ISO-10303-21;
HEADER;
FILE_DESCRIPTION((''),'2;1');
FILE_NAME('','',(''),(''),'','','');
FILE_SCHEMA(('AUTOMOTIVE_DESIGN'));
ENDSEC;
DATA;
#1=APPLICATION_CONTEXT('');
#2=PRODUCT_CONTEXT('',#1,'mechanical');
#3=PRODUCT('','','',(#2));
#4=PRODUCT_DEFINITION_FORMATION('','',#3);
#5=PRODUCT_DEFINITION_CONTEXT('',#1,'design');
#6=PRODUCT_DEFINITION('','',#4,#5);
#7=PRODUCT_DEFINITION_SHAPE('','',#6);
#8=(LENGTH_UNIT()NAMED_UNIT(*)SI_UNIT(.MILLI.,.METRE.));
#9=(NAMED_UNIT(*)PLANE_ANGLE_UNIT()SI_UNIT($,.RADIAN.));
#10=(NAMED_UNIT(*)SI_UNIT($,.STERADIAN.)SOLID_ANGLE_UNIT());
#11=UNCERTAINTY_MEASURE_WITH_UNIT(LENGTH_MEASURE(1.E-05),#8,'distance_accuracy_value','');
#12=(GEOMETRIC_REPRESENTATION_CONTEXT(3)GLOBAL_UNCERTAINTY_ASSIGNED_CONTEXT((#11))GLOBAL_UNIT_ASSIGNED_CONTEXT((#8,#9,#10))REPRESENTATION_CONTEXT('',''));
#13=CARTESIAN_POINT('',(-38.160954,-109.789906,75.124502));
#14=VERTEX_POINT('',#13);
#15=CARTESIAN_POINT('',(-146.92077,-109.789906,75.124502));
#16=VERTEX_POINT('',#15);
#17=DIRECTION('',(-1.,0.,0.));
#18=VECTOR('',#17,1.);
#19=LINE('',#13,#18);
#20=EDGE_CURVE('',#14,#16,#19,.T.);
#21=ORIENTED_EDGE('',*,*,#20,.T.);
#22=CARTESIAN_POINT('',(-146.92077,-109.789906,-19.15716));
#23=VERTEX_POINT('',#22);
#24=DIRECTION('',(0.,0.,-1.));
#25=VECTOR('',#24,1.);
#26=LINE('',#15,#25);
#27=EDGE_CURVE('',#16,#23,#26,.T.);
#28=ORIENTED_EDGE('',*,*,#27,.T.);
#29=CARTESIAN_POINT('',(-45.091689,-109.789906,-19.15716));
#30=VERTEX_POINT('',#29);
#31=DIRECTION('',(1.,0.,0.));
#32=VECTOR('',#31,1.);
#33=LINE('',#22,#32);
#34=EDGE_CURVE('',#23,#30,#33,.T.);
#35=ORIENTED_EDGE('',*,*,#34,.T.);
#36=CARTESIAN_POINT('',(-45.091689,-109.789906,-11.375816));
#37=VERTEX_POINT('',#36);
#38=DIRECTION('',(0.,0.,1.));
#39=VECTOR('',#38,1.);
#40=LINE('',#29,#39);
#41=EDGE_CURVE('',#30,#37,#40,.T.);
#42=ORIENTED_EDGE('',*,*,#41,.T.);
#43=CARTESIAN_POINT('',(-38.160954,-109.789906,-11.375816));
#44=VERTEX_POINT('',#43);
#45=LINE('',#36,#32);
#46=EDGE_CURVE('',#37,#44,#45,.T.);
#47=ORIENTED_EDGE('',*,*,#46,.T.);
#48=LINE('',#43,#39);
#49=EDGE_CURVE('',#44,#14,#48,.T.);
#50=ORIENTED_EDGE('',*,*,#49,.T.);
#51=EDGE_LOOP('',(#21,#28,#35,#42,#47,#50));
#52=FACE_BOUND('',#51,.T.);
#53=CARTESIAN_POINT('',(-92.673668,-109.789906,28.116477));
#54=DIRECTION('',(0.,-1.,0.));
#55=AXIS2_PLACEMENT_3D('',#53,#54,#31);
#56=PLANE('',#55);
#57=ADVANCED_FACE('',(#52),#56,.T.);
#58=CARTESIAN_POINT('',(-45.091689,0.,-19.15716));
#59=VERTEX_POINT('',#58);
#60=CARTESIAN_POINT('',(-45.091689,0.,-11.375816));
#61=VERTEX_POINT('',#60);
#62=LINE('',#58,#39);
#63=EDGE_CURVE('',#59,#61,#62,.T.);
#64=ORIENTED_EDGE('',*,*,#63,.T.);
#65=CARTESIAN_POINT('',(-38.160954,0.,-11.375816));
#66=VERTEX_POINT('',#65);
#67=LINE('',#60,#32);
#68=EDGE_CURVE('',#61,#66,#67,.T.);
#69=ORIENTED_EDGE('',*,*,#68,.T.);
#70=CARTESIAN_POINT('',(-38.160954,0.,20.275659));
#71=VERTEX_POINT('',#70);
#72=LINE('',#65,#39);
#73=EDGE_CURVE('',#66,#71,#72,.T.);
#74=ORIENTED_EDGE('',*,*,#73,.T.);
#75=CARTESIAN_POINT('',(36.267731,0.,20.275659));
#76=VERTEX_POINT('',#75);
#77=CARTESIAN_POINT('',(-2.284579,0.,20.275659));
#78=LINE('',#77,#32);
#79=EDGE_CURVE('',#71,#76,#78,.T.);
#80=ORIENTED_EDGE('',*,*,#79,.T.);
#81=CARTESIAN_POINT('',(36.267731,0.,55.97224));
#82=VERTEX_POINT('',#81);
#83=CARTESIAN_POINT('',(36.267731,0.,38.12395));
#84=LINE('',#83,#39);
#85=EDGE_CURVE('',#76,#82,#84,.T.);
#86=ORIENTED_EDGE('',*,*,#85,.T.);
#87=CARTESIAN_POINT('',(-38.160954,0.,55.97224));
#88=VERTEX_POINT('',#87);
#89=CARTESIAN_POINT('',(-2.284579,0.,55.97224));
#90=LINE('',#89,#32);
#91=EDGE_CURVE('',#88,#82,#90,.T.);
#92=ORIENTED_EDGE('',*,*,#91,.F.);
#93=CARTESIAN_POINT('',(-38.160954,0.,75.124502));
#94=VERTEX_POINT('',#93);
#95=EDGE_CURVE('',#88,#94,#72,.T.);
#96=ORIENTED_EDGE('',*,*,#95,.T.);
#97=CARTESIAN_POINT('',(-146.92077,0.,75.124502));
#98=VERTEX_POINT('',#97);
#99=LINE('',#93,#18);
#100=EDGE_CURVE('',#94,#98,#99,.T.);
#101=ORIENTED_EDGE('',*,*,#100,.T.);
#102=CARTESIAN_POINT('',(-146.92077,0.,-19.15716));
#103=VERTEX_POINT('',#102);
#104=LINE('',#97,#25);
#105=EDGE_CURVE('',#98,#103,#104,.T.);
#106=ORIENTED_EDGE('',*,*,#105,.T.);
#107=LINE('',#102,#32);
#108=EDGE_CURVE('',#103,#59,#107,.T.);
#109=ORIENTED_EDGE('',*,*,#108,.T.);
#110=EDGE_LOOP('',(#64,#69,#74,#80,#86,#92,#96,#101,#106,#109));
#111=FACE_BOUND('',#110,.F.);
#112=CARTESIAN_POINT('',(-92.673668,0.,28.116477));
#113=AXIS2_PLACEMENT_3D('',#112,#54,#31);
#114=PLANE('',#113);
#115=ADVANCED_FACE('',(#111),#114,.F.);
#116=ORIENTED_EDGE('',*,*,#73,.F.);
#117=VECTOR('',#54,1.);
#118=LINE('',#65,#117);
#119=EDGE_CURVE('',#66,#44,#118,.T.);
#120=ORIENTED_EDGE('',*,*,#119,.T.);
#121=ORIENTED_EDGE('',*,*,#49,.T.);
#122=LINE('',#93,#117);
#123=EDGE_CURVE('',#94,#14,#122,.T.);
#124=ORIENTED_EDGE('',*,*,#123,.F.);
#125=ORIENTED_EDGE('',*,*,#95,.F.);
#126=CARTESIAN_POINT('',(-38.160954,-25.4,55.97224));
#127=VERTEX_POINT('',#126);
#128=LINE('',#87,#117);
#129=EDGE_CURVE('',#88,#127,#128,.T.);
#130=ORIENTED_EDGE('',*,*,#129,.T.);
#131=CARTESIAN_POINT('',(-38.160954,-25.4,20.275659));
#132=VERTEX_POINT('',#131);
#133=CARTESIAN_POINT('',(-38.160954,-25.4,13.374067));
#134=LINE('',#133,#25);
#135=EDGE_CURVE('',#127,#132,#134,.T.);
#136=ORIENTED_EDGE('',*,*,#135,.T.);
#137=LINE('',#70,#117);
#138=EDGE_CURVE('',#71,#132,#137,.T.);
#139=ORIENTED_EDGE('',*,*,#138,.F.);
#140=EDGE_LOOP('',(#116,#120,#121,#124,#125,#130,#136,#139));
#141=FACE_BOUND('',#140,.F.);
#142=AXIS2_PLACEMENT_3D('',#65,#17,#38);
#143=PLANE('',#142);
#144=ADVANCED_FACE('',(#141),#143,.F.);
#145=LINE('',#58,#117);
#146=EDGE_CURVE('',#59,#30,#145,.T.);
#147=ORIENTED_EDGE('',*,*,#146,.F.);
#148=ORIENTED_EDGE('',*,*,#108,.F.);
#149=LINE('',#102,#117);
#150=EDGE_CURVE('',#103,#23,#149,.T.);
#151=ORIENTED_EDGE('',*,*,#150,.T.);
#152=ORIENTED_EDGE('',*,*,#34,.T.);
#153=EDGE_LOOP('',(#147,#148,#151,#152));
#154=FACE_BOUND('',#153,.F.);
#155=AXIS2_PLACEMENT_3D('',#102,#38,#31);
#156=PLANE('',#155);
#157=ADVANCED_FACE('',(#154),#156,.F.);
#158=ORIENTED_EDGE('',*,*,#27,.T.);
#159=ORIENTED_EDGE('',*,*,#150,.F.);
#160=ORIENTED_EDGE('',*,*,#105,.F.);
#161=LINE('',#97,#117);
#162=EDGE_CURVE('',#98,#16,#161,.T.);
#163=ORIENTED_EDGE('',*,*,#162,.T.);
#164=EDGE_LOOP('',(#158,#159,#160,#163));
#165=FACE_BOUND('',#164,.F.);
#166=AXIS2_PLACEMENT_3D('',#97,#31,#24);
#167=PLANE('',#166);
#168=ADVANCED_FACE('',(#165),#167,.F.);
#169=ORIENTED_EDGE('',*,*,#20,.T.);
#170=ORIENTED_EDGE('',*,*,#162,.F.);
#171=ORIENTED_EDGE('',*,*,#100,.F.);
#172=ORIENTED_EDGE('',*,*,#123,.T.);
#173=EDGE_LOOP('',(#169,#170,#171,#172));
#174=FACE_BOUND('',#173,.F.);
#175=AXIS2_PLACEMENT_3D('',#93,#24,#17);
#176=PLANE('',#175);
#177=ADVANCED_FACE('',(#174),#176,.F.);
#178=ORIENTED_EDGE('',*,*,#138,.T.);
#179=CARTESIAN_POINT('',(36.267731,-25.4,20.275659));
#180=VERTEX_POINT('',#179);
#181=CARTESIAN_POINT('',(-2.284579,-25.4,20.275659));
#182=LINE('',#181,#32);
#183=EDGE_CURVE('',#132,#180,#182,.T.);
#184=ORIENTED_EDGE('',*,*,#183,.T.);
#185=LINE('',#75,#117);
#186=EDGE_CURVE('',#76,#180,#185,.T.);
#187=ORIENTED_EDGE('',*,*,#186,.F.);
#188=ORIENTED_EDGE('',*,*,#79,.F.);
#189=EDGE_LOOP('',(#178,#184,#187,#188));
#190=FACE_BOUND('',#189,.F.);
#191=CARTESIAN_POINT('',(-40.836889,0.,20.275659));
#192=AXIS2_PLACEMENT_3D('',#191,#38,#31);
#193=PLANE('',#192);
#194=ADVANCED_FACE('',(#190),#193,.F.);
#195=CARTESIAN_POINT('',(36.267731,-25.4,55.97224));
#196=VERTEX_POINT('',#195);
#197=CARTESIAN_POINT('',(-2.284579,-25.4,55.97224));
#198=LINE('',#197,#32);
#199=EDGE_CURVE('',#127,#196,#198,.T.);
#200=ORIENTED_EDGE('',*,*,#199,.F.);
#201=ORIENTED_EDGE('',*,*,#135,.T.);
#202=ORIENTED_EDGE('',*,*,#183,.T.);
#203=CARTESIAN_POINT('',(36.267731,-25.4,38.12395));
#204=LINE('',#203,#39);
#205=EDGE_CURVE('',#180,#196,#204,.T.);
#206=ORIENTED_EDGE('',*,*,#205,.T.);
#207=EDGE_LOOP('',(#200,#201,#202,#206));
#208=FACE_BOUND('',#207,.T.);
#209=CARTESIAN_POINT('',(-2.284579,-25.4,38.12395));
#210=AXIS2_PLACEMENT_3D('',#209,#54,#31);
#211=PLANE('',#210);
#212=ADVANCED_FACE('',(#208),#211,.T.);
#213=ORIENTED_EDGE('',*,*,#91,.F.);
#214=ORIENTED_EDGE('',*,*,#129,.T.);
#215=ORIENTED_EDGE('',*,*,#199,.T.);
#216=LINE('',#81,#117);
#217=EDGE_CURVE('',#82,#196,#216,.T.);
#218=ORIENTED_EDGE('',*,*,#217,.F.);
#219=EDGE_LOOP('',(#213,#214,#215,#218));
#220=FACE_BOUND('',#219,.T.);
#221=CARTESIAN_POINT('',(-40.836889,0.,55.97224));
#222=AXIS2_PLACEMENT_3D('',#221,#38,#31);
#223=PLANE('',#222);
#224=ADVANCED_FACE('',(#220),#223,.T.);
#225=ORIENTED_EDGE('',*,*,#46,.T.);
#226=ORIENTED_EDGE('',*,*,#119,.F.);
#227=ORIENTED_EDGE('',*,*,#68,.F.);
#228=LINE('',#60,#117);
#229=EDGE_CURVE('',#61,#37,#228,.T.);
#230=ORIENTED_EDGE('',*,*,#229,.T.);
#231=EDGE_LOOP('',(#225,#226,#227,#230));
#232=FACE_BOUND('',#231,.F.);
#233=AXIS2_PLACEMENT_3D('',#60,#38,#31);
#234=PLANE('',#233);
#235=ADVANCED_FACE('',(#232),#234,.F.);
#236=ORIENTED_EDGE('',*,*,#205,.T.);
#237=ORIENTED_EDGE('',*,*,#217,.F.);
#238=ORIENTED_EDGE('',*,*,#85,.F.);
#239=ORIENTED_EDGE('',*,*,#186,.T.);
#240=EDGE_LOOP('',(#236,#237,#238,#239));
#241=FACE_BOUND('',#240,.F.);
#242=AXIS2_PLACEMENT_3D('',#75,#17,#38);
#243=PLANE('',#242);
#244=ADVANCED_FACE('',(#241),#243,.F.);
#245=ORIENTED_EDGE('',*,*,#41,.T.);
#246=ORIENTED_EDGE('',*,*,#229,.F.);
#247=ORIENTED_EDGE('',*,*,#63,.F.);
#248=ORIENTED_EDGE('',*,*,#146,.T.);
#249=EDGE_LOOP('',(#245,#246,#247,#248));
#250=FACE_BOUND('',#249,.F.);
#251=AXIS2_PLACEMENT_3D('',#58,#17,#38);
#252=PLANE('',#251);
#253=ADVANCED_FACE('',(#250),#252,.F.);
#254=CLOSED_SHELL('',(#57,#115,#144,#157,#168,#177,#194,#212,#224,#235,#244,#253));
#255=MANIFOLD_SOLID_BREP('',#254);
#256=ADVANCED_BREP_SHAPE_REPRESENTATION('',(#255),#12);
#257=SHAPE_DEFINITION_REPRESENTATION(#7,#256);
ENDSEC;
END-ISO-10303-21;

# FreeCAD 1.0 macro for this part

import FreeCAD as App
import Part
import Sketcher
from FreeCAD import Vector
Q = App.Units.Quantity

doc = App.newDocument("Part")
body = doc.addObject("PartDesign::Body", "Body")

# Sketch on XZ plane
sketch1 = body.newObject("Sketcher::SketchObject", "Sketch")
sketch1.AttachmentSupport = (doc.getObject("XZ_Plane"), [""])
sketch1.MapMode = "FlatFace"
sketch1.addGeometry(Part.LineSegment(Vector(-41, 56, 0), Vector(-41, 20, 0)), False)
sketch1.addGeometry(Part.LineSegment(Vector(-41, 20, 0), Vector(36, 20, 0)), False)
sketch1.addGeometry(Part.LineSegment(Vector(36, 20, 0), Vector(36, 56, 0)), False)
sketch1.addGeometry(Part.LineSegment(Vector(36, 56, 0), Vector(-41, 56, 0)), False)
sketch1.addConstraint(Sketcher.Constraint("Coincident", 0, 2, 1, 1))
sketch1.addConstraint(Sketcher.Constraint("Coincident", 1, 2, 2, 1))
sketch1.addConstraint(Sketcher.Constraint("Coincident", 2, 2, 3, 1))
sketch1.addConstraint(Sketcher.Constraint("Coincident", 3, 2, 0, 1))
sketch1.addConstraint(Sketcher.Constraint("Vertical", 0))
sketch1.addConstraint(Sketcher.Constraint("Horizontal", 1))
sketch1.addConstraint(Sketcher.Constraint("Vertical", 2))
sketch1.addConstraint(Sketcher.Constraint("Horizontal", 3))
sketch1.addConstraint(Sketcher.Constraint("DistanceX", 1, 1, 1, 2, Q("77.10462 mm")))
sketch1.addConstraint(Sketcher.Constraint("DistanceY", 0, 2, 0, 1, Q("35.696581 mm")))
sketch1.addConstraint(Sketcher.Constraint("DistanceX", 0, 2, -1, 1, Q("40.836889 mm")))
sketch1.addConstraint(Sketcher.Constraint("DistanceY", -1, 1, 0, 2, Q("20.275659 mm")))
pad1 = body.newObject("PartDesign::Pad", "Pad")
pad1.Profile = sketch1
pad1.Length = Q("1 in")

# Sketch on XZ plane
sketch2 = body.newObject("Sketcher::SketchObject", "Sketch001")
sketch2.AttachmentSupport = (doc.getObject("XZ_Plane"), [""])
sketch2.MapMode = "FlatFace"
sketch2.addGeometry(Part.LineSegment(Vector(-147, -19, 0), Vector(-45, -19, 0)), False)
sketch2.addGeometry(Part.LineSegment(Vector(-45, -19, 0), Vector(-45, -11, 0)), False)
sketch2.addGeometry(Part.LineSegment(Vector(-45, -11, 0), Vector(-38, -11, 0)), False)
sketch2.addGeometry(Part.LineSegment(Vector(-38, -11, 0), Vector(-38, 75, 0)), False)
sketch2.addGeometry(Part.LineSegment(Vector(-38, 75, 0), Vector(-147, 75, 0)), False)
sketch2.addGeometry(Part.LineSegment(Vector(-147, 75, 0), Vector(-147, -19, 0)), False)
sketch2.addConstraint(Sketcher.Constraint("Coincident", 0, 2, 1, 1))
sketch2.addConstraint(Sketcher.Constraint("Coincident", 1, 2, 2, 1))
sketch2.addConstraint(Sketcher.Constraint("Coincident", 2, 2, 3, 1))
sketch2.addConstraint(Sketcher.Constraint("Coincident", 3, 2, 4, 1))
sketch2.addConstraint(Sketcher.Constraint("Coincident", 4, 2, 5, 1))
sketch2.addConstraint(Sketcher.Constraint("Coincident", 5, 2, 0, 1))
sketch2.addConstraint(Sketcher.Constraint("Horizontal", 0))
sketch2.addConstraint(Sketcher.Constraint("Vertical", 1))
sketch2.addConstraint(Sketcher.Constraint("Horizontal", 2))
sketch2.addConstraint(Sketcher.Constraint("Vertical", 3))
sketch2.addConstraint(Sketcher.Constraint("Horizontal", 4))
sketch2.addConstraint(Sketcher.Constraint("Vertical", 5))
sketch2.addConstraint(Sketcher.Constraint("DistanceX", 0, 1, 0, 2, Q("101.829081 mm")))
sketch2.addConstraint(Sketcher.Constraint("DistanceY", 3, 1, 3, 2, Q("86.500318 mm")))
sketch2.addConstraint(Sketcher.Constraint("DistanceX", 2, 1, 2, 2, Q("6.930735 mm")))
sketch2.addConstraint(Sketcher.Constraint("DistanceY", 1, 1, 1, 2, Q("7.781344 mm")))
sketch2.addConstraint(Sketcher.Constraint("DistanceX", 0, 2, -1, 1, Q("45.091689 mm")))
sketch2.addConstraint(Sketcher.Constraint("DistanceY", 0, 2, -1, 1, Q("19.15716 mm")))
pad2 = body.newObject("PartDesign::Pad", "Pad001")
pad2.Profile = sketch2
pad2.Length = 109.789906

doc.recompute()
